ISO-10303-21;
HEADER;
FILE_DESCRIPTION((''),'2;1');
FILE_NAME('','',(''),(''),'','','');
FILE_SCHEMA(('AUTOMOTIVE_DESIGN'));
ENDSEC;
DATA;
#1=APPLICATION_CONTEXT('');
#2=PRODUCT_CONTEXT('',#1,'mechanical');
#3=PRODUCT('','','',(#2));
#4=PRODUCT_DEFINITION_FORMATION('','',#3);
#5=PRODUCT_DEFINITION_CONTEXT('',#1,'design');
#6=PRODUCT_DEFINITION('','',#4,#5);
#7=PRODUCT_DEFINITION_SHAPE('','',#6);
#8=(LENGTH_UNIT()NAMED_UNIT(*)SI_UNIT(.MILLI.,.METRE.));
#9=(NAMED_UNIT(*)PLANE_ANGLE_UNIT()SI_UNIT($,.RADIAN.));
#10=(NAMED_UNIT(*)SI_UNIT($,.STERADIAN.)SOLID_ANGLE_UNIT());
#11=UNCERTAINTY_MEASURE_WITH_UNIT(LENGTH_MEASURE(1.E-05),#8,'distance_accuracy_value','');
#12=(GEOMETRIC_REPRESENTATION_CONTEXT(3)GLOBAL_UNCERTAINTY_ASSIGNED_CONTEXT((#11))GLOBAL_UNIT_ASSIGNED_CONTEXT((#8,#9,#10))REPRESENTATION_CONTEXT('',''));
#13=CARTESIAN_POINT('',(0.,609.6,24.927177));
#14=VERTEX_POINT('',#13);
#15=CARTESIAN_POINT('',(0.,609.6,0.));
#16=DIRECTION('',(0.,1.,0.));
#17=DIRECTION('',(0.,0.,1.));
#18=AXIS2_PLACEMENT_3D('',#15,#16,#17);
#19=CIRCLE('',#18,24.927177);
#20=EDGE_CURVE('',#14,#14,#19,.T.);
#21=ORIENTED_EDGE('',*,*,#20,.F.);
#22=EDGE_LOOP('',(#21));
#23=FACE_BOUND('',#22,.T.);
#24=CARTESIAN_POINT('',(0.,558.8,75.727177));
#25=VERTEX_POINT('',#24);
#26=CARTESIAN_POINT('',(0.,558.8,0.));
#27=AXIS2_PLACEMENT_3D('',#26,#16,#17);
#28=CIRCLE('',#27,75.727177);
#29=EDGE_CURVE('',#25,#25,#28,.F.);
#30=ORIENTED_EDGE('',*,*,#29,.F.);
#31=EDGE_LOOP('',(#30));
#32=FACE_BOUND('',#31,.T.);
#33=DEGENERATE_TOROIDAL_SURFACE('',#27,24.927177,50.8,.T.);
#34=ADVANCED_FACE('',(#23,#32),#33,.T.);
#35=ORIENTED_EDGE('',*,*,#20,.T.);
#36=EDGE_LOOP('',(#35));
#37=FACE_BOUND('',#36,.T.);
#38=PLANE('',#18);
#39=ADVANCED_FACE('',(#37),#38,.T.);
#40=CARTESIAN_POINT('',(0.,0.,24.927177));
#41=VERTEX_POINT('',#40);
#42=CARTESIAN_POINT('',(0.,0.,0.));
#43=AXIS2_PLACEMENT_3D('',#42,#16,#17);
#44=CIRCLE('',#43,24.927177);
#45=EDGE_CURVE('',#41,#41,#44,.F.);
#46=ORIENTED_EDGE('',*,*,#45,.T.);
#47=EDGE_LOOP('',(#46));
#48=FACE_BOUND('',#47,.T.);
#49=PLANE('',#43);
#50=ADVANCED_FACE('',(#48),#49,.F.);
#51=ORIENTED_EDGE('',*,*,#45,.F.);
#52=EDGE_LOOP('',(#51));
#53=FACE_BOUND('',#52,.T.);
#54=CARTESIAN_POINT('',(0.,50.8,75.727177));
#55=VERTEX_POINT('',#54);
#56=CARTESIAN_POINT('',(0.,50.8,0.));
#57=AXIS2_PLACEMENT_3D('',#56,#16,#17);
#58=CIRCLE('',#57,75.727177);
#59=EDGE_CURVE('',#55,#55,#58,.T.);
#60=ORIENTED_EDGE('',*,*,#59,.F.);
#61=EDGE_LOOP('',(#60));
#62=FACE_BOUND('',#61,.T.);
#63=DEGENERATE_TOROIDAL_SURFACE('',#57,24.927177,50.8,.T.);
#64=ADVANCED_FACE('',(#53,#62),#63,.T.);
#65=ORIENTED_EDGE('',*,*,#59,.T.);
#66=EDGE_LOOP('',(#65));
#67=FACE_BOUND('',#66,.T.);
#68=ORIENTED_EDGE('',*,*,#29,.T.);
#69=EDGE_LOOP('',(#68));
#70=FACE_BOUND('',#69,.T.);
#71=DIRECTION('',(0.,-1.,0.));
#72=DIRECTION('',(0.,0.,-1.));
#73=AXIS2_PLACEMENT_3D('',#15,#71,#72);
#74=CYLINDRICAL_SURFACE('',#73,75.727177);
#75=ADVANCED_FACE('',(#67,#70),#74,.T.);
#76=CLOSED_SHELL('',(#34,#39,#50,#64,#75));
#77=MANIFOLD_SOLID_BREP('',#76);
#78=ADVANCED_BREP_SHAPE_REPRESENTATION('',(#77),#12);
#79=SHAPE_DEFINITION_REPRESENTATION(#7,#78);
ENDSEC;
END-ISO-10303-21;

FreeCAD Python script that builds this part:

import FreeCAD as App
import Part
import Sketcher
from FreeCAD import Vector
Q = App.Units.Quantity


def edges_at(feature, points):
    """Names of the edges that pass closest to the given points."""
    edges = feature.Shape.Edges
    near = lambda p: min(range(len(edges)), key=lambda i: edges[i].distToShape(Part.Vertex(*p))[0])
    return sorted({f"Edge{near(p) + 1}" for p in points})

doc = App.newDocument("Part")
params = doc.addObject("Spreadsheet::Sheet", "Params")
for row, (alias, value) in enumerate([
    ("pad1_length", "24 in"),
    ("fillet_radius", "2 in"),
], start=1):
    params.set(f"A{row}", alias)
    params.set(f"B{row}", "=" + value)
    params.setAlias(f"B{row}", alias)

body = doc.addObject("PartDesign::Body", "Body")

# Sketch on XZ plane
sketch1 = body.newObject("Sketcher::SketchObject", "Sketch")
sketch1.AttachmentSupport = (doc.getObject("XZ_Plane"), [""])
sketch1.MapMode = "FlatFace"
sketch1.addGeometry(Part.Circle(Vector(0, 0, 0), Vector(0, 0, 1), 76), False)
sketch1.addConstraint(Sketcher.Constraint("Coincident", 0, 3, -1, 1))
sketch1.addConstraint(Sketcher.Constraint("Diameter", 0, Q("151.454355 mm")))
pad1 = body.newObject("PartDesign::Pad", "Pad")
pad1.Profile = sketch1
pad1.setExpression("Length", "Params.pad1_length")
pad1.Reversed = True
doc.recompute()

fillet = body.newObject("PartDesign::Fillet", "Fillet")
fillet.Base = (pad1, edges_at(pad1, [(-75.727, 0, 0), (-75.727, 609.6, 0)]))
fillet.setExpression("Radius", "Params.fillet_radius")

doc.recompute()
